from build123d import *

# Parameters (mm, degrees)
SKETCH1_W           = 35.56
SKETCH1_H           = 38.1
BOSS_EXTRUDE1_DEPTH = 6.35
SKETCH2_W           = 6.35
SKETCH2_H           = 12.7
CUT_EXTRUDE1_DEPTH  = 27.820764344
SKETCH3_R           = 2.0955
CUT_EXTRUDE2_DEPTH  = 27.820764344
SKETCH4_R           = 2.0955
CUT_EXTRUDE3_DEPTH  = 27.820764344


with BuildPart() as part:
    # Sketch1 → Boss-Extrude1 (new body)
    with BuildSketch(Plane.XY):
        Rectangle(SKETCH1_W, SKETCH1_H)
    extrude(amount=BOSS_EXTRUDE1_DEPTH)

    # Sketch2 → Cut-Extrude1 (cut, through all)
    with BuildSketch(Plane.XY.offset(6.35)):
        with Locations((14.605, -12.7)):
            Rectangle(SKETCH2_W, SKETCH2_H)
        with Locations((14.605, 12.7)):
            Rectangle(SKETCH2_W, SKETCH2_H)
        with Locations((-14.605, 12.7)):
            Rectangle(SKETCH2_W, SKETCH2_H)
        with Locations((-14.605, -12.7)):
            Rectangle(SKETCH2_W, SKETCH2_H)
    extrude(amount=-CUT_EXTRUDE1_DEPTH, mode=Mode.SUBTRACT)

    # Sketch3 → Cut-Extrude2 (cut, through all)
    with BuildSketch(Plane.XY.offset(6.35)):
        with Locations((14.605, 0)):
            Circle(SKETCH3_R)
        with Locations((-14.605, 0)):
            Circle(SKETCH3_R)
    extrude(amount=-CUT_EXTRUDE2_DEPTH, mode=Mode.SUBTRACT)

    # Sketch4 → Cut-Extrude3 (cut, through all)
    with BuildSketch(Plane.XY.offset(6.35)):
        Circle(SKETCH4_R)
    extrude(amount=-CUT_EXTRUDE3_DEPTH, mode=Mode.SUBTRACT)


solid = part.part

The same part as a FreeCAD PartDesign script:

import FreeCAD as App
import Part
import Sketcher
Q = App.Units.Quantity

doc = App.newDocument("Part")
body = doc.addObject("PartDesign::Body", "Body")

# Sketch on XY plane
sketch1 = body.newObject("Sketcher::SketchObject", "Sketch")
sketch1.AttachmentSupport = (doc.getObject("XY_Plane"), [""])
sketch1.MapMode = "FlatFace"
sketch1.addGeometry([
    Part.LineSegment(App.Vector(-17.78, 19.05, 0), App.Vector(-17.78, -19.05, 0)),
    Part.LineSegment(App.Vector(-17.78, -19.05, 0), App.Vector(17.78, -19.05, 0)),
    Part.LineSegment(App.Vector(17.78, -19.05, 0), App.Vector(17.78, 19.05, 0)),
    Part.LineSegment(App.Vector(17.78, 19.05, 0), App.Vector(-17.78, 19.05, 0)),
], False)
sketch1.addConstraint([
    Sketcher.Constraint("Coincident", 0, 2, 1, 1),
    Sketcher.Constraint("Coincident", 1, 2, 2, 1),
    Sketcher.Constraint("Coincident", 2, 2, 3, 1),
    Sketcher.Constraint("Coincident", 3, 2, 0, 1),
    Sketcher.Constraint("Vertical", 0),
    Sketcher.Constraint("Horizontal", 1),
    Sketcher.Constraint("Vertical", 2),
    Sketcher.Constraint("Horizontal", 3),
    Sketcher.Constraint("Symmetric", 0, 2, 2, 2, -1, 1),
    Sketcher.Constraint("DistanceX", 1, 1, 1, 2, Q("1.4 in")),
    Sketcher.Constraint("DistanceY", 0, 2, 0, 1, Q("1.5 in")),
])
pad1 = body.newObject("PartDesign::Pad", "Pad")
pad1.Profile = sketch1
pad1.Length = Q("0.25 in")

# Sketch on XY plane
sketch2 = body.newObject("Sketcher::SketchObject", "Sketch001")
sketch2.AttachmentSupport = (doc.getObject("XY_Plane"), [""])
sketch2.MapMode = "FlatFace"
sketch2.AttachmentOffset = App.Placement(App.Vector(0, 0, 0.25 * 25.4), App.Rotation())
sketch2.addGeometry([
    Part.LineSegment(App.Vector(11.43, -6.35, 0), App.Vector(11.43, -19.05, 0)),  # 0
    Part.LineSegment(App.Vector(11.43, -19.05, 0), App.Vector(17.78, -19.05, 0)),  # 1
    Part.LineSegment(App.Vector(17.78, -19.05, 0), App.Vector(17.78, -6.35, 0)),  # 2
    Part.LineSegment(App.Vector(17.78, -6.35, 0), App.Vector(11.43, -6.35, 0)),  # 3
    Part.LineSegment(App.Vector(11.43, 19.05, 0), App.Vector(11.43, 6.35, 0)),  # 4
    Part.LineSegment(App.Vector(11.43, 6.35, 0), App.Vector(17.78, 6.35, 0)),  # 5
    Part.LineSegment(App.Vector(17.78, 6.35, 0), App.Vector(17.78, 19.05, 0)),  # 6
    Part.LineSegment(App.Vector(17.78, 19.05, 0), App.Vector(11.43, 19.05, 0)),  # 7
    Part.LineSegment(App.Vector(-17.78, 19.05, 0), App.Vector(-17.78, 6.35, 0)),  # 8
    Part.LineSegment(App.Vector(-17.78, 6.35, 0), App.Vector(-11.43, 6.35, 0)),  # 9
    Part.LineSegment(App.Vector(-11.43, 6.35, 0), App.Vector(-11.43, 19.05, 0)),  # 10
    Part.LineSegment(App.Vector(-11.43, 19.05, 0), App.Vector(-17.78, 19.05, 0)),  # 11
    Part.LineSegment(App.Vector(-17.78, -6.35, 0), App.Vector(-17.78, -19.05, 0)),  # 12
    Part.LineSegment(App.Vector(-17.78, -19.05, 0), App.Vector(-11.43, -19.05, 0)),  # 13
    Part.LineSegment(App.Vector(-11.43, -19.05, 0), App.Vector(-11.43, -6.35, 0)),  # 14
    Part.LineSegment(App.Vector(-11.43, -6.35, 0), App.Vector(-17.78, -6.35, 0)),  # 15
], False)
sketch2.addConstraint([
    Sketcher.Constraint("Coincident", 0, 2, 1, 1),
    Sketcher.Constraint("Coincident", 1, 2, 2, 1),
    Sketcher.Constraint("Coincident", 2, 2, 3, 1),
    Sketcher.Constraint("Coincident", 3, 2, 0, 1),
    Sketcher.Constraint("Coincident", 4, 2, 5, 1),
    Sketcher.Constraint("Coincident", 5, 2, 6, 1),
    Sketcher.Constraint("Coincident", 6, 2, 7, 1),
    Sketcher.Constraint("Coincident", 7, 2, 4, 1),
    Sketcher.Constraint("Coincident", 8, 2, 9, 1),
    Sketcher.Constraint("Coincident", 9, 2, 10, 1),
    Sketcher.Constraint("Coincident", 10, 2, 11, 1),
    Sketcher.Constraint("Coincident", 11, 2, 8, 1),
    Sketcher.Constraint("Coincident", 12, 2, 13, 1),
    Sketcher.Constraint("Coincident", 13, 2, 14, 1),
    Sketcher.Constraint("Coincident", 14, 2, 15, 1),
    Sketcher.Constraint("Coincident", 15, 2, 12, 1),
    Sketcher.Constraint("Vertical", 0),
    Sketcher.Constraint("Horizontal", 1),
    Sketcher.Constraint("Vertical", 2),
    Sketcher.Constraint("Horizontal", 3),
    Sketcher.Constraint("Vertical", 4),
    Sketcher.Constraint("Horizontal", 5),
    Sketcher.Constraint("Vertical", 6),
    Sketcher.Constraint("Horizontal", 7),
    Sketcher.Constraint("Vertical", 8),
    Sketcher.Constraint("Horizontal", 9),
    Sketcher.Constraint("Vertical", 10),
    Sketcher.Constraint("Horizontal", 11),
    Sketcher.Constraint("Vertical", 12),
    Sketcher.Constraint("Horizontal", 13),
    Sketcher.Constraint("Vertical", 14),
    Sketcher.Constraint("Horizontal", 15),
    Sketcher.Constraint("Symmetric", 2, 2, 8, 2, -1, 1),
    Sketcher.Constraint("Symmetric", 0, 2, 10, 2, -1, 1),
    Sketcher.Constraint("Symmetric", 6, 2, 12, 2, -1, 1),
    Sketcher.Constraint("Symmetric", 4, 2, 14, 2, -1, 1),
    Sketcher.Constraint("Symmetric", 5, 2, 8, 2, -2),
    Sketcher.Constraint("Symmetric", 7, 2, 10, 2, -2),
    Sketcher.Constraint("DistanceY", 0, 2, 0, 1, Q("0.5 in")),
    Sketcher.Constraint("DistanceY", 0, 2, 4, 2, Q("1 in")),
    Sketcher.Constraint("DistanceX", 1, 1, 1, 2, Q("0.25 in")),
    Sketcher.Constraint("DistanceX", -1, 1, 1, 2, Q("0.7 in")),
])
pocket1 = body.newObject("PartDesign::Pocket", "Pocket")
pocket1.Profile = sketch2
pocket1.Type = "ThroughAll"

# Sketch on XY plane
sketch3 = body.newObject("Sketcher::SketchObject", "Sketch002")
sketch3.AttachmentSupport = (doc.getObject("XY_Plane"), [""])
sketch3.MapMode = "FlatFace"
sketch3.AttachmentOffset = App.Placement(App.Vector(0, 0, 0.25 * 25.4), App.Rotation())
sketch3.addGeometry([
    Part.Circle(App.Vector(14.605, 0, 0), App.Vector(0, 0, 1), 2.0955),
    Part.Circle(App.Vector(-14.605, 0, 0), App.Vector(0, 0, 1), 2.0955),
], False)
sketch3.addConstraint([
    Sketcher.Constraint("Equal", 0, 1),
    Sketcher.Constraint("Symmetric", 0, 3, 1, 3, -1, 1),
    Sketcher.Constraint("PointOnObject", 0, 3, -1),
    Sketcher.Constraint("Diameter", 0, Q("0.165 in")),
    Sketcher.Constraint("DistanceX", 1, 3, 0, 3, Q("1.15 in")),
])
pocket2 = body.newObject("PartDesign::Pocket", "Pocket001")
pocket2.Profile = sketch3
pocket2.Type = "ThroughAll"

# Sketch on XY plane
sketch4 = body.newObject("Sketcher::SketchObject", "Sketch003")
sketch4.AttachmentSupport = (doc.getObject("XY_Plane"), [""])
sketch4.MapMode = "FlatFace"
sketch4.AttachmentOffset = App.Placement(App.Vector(0, 0, 0.25 * 25.4), App.Rotation())
sketch4.addGeometry(Part.Circle(App.Vector(0, 0, 0), App.Vector(0, 0, 1), 2.0955), False)
sketch4.addConstraint([
    Sketcher.Constraint("Coincident", 0, 3, -1, 1),
    Sketcher.Constraint("Diameter", 0, Q("0.165 in")),
])
pocket3 = body.newObject("PartDesign::Pocket", "Pocket002")
pocket3.Profile = sketch4
pocket3.Type = "ThroughAll"

doc.recompute()
